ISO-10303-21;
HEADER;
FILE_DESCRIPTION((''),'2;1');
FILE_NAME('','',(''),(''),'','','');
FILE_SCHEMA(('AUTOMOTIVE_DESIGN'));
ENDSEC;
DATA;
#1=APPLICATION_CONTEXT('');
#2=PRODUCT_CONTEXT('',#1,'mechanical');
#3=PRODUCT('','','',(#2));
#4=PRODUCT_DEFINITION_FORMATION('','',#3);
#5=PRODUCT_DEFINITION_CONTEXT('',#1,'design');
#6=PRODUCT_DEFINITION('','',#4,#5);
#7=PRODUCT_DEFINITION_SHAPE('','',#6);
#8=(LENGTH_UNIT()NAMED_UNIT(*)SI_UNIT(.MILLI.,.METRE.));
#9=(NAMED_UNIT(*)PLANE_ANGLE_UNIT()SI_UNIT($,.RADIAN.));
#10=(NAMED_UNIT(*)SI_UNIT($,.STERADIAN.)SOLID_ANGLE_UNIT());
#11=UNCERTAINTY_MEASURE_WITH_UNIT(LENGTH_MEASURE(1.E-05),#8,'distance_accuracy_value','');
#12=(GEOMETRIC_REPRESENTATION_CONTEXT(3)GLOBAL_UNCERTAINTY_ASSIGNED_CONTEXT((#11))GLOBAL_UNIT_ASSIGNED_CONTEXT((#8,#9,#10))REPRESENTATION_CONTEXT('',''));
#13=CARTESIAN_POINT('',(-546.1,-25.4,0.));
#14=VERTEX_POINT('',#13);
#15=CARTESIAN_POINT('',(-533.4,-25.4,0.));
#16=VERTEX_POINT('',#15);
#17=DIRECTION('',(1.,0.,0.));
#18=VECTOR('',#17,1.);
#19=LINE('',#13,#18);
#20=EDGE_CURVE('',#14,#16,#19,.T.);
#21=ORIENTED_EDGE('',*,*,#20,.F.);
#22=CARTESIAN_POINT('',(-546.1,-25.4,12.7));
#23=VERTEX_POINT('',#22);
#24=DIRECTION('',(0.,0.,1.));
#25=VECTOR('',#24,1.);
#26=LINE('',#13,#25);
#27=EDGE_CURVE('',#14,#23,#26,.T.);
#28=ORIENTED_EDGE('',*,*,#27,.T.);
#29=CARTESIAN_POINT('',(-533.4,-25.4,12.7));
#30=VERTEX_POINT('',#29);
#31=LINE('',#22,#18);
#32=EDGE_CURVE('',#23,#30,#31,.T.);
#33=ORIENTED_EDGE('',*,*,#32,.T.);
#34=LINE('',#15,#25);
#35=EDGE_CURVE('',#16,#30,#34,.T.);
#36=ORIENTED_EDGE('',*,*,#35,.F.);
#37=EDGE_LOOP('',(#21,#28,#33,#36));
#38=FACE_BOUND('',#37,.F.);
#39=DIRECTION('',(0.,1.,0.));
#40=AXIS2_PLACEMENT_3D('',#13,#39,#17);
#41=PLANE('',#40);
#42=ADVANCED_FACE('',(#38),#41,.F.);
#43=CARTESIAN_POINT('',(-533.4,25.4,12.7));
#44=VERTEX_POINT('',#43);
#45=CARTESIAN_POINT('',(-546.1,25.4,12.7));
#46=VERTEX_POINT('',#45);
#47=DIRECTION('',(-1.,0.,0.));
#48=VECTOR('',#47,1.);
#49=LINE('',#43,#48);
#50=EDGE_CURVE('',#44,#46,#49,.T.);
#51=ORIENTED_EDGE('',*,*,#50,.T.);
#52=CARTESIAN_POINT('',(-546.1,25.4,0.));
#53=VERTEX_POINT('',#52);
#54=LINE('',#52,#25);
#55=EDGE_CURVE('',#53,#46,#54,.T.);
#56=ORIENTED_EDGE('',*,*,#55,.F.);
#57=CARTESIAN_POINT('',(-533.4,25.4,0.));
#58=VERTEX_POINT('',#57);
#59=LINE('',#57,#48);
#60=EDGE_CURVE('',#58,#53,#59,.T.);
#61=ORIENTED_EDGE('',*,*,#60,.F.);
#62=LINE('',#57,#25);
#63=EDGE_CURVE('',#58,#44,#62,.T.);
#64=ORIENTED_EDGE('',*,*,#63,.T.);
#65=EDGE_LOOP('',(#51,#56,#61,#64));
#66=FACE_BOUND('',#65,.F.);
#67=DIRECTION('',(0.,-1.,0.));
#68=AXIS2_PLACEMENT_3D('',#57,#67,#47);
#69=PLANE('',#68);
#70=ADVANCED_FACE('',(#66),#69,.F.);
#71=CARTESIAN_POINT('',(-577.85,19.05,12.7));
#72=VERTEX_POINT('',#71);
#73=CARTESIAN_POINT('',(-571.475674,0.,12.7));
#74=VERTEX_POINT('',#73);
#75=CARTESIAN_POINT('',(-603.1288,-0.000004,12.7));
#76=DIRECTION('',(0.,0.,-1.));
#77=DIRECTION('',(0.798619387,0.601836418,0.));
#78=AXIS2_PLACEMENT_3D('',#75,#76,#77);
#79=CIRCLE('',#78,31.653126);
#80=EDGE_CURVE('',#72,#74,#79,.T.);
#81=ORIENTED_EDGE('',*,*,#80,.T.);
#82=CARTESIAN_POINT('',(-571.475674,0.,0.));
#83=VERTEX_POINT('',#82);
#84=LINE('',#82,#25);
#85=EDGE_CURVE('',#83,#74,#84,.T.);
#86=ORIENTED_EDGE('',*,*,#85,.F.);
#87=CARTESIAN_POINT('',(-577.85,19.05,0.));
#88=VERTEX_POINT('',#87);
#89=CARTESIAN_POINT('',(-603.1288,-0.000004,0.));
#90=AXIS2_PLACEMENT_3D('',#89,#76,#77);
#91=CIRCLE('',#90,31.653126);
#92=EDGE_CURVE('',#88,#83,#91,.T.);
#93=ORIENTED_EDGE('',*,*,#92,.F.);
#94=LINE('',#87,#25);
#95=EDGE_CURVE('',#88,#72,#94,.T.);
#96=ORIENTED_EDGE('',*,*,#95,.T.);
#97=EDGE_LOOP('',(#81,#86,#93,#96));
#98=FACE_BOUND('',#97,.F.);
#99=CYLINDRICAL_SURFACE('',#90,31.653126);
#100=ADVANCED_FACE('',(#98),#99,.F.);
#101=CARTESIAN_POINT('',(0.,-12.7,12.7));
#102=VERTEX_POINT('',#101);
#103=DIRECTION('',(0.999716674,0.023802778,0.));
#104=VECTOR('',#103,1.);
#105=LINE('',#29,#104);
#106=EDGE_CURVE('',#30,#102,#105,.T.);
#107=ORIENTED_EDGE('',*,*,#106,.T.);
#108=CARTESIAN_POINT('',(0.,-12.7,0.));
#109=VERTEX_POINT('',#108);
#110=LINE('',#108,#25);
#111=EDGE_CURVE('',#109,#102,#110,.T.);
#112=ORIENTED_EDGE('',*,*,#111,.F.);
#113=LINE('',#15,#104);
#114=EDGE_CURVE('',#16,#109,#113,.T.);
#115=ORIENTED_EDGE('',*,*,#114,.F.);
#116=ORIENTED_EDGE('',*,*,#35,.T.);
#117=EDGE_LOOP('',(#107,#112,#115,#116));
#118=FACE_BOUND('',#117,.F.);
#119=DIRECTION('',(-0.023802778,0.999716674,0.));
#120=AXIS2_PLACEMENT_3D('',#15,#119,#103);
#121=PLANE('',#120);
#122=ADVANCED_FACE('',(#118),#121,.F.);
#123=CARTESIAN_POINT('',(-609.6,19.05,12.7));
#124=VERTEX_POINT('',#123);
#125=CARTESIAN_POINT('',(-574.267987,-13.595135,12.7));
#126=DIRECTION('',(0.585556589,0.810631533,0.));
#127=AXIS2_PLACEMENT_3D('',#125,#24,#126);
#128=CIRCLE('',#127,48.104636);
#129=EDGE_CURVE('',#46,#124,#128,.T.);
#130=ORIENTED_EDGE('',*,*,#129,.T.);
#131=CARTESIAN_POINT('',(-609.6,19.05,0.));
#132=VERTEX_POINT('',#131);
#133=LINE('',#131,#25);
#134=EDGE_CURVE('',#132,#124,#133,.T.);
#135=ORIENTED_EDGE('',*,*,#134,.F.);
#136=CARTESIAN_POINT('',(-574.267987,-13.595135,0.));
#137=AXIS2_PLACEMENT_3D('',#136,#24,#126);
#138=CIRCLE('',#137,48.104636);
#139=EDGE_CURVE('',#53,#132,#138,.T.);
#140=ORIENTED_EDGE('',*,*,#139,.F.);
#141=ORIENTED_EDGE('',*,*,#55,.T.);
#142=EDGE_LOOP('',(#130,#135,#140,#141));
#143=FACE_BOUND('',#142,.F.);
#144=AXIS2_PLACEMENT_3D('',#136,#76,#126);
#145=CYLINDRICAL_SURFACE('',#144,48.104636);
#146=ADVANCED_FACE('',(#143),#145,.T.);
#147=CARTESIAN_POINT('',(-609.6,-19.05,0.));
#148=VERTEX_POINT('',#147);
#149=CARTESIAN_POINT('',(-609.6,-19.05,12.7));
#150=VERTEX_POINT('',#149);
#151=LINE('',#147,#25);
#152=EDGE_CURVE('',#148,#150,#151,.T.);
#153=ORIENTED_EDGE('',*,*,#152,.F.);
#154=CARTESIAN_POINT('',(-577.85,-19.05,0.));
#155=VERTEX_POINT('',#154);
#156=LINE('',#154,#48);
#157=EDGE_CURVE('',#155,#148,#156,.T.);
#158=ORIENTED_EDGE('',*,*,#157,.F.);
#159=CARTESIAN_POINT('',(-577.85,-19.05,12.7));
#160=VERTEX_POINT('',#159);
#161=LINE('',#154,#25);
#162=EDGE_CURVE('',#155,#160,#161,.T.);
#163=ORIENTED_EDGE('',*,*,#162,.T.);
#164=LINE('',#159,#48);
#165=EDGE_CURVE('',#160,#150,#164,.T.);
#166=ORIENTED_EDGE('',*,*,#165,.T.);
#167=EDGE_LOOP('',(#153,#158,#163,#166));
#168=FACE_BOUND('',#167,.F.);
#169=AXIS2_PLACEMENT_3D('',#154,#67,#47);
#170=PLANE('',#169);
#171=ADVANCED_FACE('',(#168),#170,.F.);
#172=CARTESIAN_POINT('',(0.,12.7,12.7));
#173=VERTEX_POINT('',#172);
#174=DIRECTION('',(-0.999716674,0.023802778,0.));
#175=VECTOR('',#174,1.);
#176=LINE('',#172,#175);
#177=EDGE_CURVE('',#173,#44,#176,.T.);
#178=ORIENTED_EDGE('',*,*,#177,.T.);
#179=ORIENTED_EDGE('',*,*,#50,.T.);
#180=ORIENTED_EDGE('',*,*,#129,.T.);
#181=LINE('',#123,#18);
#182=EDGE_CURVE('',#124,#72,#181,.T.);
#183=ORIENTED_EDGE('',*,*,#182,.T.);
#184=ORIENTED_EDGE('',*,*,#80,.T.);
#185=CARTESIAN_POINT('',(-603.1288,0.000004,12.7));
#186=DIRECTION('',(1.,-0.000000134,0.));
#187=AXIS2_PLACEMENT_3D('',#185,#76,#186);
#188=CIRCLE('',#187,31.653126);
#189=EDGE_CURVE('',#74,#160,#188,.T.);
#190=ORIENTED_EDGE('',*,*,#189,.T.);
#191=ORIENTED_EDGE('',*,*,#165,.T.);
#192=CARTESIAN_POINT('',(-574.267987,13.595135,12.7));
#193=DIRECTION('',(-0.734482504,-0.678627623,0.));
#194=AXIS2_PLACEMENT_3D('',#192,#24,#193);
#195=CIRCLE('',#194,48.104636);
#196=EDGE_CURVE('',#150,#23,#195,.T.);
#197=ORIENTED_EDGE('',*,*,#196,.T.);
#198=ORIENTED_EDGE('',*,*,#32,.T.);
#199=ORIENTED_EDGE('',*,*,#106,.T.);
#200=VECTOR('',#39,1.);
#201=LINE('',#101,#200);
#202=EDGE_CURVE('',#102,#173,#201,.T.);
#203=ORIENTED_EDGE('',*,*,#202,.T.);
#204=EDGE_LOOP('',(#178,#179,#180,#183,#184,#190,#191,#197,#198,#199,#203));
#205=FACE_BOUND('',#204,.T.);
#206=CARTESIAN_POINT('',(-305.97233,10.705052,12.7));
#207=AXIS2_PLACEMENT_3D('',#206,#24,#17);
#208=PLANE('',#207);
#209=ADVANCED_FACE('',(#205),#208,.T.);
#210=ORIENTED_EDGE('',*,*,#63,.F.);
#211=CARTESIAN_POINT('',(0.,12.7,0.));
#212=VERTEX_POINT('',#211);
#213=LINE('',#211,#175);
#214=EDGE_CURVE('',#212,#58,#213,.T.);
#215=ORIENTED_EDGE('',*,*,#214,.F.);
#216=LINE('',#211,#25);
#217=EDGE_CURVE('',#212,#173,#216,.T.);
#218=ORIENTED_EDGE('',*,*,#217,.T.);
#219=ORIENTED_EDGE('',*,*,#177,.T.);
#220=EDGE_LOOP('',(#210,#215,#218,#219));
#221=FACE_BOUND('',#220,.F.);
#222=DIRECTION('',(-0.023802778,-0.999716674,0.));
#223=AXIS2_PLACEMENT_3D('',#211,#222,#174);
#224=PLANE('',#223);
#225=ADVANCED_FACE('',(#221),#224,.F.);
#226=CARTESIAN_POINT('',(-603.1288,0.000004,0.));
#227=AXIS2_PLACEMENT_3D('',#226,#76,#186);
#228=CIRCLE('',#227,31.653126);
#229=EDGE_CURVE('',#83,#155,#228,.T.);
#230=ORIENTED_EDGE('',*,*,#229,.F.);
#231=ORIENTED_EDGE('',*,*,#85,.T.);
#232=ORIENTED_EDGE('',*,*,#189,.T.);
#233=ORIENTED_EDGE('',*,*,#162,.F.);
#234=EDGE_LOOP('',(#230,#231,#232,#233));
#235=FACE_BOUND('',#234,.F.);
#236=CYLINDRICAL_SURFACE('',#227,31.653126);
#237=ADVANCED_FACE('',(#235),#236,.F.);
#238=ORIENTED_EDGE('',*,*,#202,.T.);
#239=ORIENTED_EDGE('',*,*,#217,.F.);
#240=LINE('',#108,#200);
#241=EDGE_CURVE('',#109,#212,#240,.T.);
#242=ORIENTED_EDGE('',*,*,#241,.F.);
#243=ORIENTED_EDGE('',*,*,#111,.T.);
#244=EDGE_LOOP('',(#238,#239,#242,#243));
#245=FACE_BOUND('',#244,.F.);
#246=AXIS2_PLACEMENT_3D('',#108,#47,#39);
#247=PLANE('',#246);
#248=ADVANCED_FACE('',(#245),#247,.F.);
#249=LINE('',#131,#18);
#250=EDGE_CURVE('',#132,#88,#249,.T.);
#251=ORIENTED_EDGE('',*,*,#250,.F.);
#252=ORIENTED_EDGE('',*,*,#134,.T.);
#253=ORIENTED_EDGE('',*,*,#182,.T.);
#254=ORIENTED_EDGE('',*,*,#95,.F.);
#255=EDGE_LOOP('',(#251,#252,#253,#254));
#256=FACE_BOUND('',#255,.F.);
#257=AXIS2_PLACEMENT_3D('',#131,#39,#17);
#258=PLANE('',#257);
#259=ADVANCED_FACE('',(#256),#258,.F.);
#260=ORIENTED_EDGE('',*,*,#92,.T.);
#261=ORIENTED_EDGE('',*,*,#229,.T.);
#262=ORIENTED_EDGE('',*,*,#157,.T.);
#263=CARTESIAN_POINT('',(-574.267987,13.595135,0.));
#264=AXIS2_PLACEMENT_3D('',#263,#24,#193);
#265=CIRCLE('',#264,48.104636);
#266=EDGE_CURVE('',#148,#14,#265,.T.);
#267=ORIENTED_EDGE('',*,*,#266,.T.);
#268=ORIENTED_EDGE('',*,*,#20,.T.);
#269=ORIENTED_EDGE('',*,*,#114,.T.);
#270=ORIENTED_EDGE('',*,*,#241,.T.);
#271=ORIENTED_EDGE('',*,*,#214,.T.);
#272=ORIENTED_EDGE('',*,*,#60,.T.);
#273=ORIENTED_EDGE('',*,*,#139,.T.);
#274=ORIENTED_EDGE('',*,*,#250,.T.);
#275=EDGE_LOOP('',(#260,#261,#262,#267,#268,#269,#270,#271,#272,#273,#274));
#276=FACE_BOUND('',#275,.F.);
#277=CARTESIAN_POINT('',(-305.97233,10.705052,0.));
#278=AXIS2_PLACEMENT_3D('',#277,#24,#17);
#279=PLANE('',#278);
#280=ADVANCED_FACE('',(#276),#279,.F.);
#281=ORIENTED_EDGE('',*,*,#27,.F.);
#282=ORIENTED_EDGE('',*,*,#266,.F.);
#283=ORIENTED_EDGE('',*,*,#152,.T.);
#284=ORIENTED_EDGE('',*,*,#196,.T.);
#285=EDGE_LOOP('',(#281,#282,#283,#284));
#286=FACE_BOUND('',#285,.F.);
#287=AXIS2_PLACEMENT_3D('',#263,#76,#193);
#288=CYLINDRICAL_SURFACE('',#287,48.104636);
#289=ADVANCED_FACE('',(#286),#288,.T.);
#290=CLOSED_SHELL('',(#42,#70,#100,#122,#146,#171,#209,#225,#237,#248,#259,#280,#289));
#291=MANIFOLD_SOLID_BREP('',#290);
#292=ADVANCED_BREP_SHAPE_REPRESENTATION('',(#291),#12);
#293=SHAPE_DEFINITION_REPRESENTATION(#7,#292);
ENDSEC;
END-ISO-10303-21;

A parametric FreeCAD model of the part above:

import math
import FreeCAD as App
import Part
import Sketcher
from FreeCAD import Vector
Q = App.Units.Quantity

doc = App.newDocument("Part")
body = doc.addObject("PartDesign::Body", "Body")

# Sketch on XY plane
sketch1 = body.newObject("Sketcher::SketchObject", "Sketch")
sketch1.AttachmentSupport = (doc.getObject("XY_Plane"), [""])
sketch1.MapMode = "FlatFace"
sketch1.addGeometry([
    Part.LineSegment(Vector(0, 13, 0), Vector(-533, 25, 0)),  # 0
    Part.LineSegment(Vector(-533, 25, 0), Vector(-546, 25, 0)),  # 1
    Part.ArcOfCircle(Part.Circle(Vector(-574, -14, 0), Vector(0, 0, 1), 48), math.radians(54), math.radians(137)),  # 2
    Part.LineSegment(Vector(-610, 19, 0), Vector(-578, 19, 0)),  # 3
    Part.ArcOfCircle(Part.Circle(Vector(-603, 0, 0), Vector(0, 0, 1), 32), math.radians(0), math.radians(37)),  # 4
    Part.ArcOfCircle(Part.Circle(Vector(-603, 0, 0), Vector(0, 0, 1), 32), math.radians(-37), math.radians(0)),  # 5
    Part.LineSegment(Vector(-578, -19, 0), Vector(-610, -19, 0)),  # 6
    Part.ArcOfCircle(Part.Circle(Vector(-574, 14, 0), Vector(0, 0, 1), 48), math.radians(-137), math.radians(-54)),  # 7
    Part.LineSegment(Vector(-546, -25, 0), Vector(-533, -25, 0)),  # 8
    Part.LineSegment(Vector(-533, -25, 0), Vector(0, -13, 0)),  # 9
    Part.LineSegment(Vector(0, -13, 0), Vector(0, 13, 0)),  # 10
], False)
sketch1.addConstraint([
    Sketcher.Constraint("Coincident", 0, 2, 1, 1),
    Sketcher.Constraint("Coincident", 1, 2, 2, 1),
    Sketcher.Constraint("Coincident", 2, 2, 3, 1),
    Sketcher.Constraint("Coincident", 3, 2, 4, 2),
    Sketcher.Constraint("Tangent", 4, 1, 5, 2),
    Sketcher.Constraint("Coincident", 5, 1, 6, 1),
    Sketcher.Constraint("Coincident", 6, 2, 7, 1),
    Sketcher.Constraint("Coincident", 7, 2, 8, 1),
    Sketcher.Constraint("Coincident", 8, 2, 9, 1),
    Sketcher.Constraint("Coincident", 9, 2, 10, 1),
    Sketcher.Constraint("Coincident", 10, 2, 0, 1),
    Sketcher.Constraint("Horizontal", 1),
    Sketcher.Constraint("Horizontal", 3),
    Sketcher.Constraint("Horizontal", 6),
    Sketcher.Constraint("Horizontal", 8),
    Sketcher.Constraint("Vertical", 10),
    Sketcher.Constraint("Equal", 4, 5),
    Sketcher.Constraint("Equal", 2, 7),
    Sketcher.Constraint("Symmetric", 9, 2, 10, 2, -1, 1),
    Sketcher.Constraint("Symmetric", 2, 3, 7, 3, -1),
    Sketcher.Constraint("Symmetric", 3, 2, 5, 1, -1),
    Sketcher.Constraint("Symmetric", 0, 2, 8, 2, -1),
    Sketcher.Constraint("PointOnObject", 4, 1, -1),
    Sketcher.Constraint("DistanceY", 10, 1, 10, 2, Q("1 in")),
    Sketcher.Constraint("DistanceX", 1, 2, 1, 1, Q("0.5 in")),
    Sketcher.Constraint("DistanceX", 0, 2, -1, 1, Q("21 in")),
    Sketcher.Constraint("DistanceY", -1, 1, 0, 2, Q("1 in")),
    Sketcher.Constraint("DistanceX", 2, 2, -1, 1, Q("24 in")),
    Sketcher.Constraint("DistanceX", 3, 1, 3, 2, Q("1.25 in")),
    Sketcher.Constraint("DistanceY", 6, 2, 2, 2, Q("1.5 in")),
    Sketcher.Constraint("Radius", 2, Q("48.104636 mm")),
    Sketcher.Constraint("Radius", 4, Q("31.653126 mm")),
])
pad1 = body.newObject("PartDesign::Pad", "Pad")
pad1.Profile = sketch1
pad1.Length = Q("0.5 in")

doc.recompute()
